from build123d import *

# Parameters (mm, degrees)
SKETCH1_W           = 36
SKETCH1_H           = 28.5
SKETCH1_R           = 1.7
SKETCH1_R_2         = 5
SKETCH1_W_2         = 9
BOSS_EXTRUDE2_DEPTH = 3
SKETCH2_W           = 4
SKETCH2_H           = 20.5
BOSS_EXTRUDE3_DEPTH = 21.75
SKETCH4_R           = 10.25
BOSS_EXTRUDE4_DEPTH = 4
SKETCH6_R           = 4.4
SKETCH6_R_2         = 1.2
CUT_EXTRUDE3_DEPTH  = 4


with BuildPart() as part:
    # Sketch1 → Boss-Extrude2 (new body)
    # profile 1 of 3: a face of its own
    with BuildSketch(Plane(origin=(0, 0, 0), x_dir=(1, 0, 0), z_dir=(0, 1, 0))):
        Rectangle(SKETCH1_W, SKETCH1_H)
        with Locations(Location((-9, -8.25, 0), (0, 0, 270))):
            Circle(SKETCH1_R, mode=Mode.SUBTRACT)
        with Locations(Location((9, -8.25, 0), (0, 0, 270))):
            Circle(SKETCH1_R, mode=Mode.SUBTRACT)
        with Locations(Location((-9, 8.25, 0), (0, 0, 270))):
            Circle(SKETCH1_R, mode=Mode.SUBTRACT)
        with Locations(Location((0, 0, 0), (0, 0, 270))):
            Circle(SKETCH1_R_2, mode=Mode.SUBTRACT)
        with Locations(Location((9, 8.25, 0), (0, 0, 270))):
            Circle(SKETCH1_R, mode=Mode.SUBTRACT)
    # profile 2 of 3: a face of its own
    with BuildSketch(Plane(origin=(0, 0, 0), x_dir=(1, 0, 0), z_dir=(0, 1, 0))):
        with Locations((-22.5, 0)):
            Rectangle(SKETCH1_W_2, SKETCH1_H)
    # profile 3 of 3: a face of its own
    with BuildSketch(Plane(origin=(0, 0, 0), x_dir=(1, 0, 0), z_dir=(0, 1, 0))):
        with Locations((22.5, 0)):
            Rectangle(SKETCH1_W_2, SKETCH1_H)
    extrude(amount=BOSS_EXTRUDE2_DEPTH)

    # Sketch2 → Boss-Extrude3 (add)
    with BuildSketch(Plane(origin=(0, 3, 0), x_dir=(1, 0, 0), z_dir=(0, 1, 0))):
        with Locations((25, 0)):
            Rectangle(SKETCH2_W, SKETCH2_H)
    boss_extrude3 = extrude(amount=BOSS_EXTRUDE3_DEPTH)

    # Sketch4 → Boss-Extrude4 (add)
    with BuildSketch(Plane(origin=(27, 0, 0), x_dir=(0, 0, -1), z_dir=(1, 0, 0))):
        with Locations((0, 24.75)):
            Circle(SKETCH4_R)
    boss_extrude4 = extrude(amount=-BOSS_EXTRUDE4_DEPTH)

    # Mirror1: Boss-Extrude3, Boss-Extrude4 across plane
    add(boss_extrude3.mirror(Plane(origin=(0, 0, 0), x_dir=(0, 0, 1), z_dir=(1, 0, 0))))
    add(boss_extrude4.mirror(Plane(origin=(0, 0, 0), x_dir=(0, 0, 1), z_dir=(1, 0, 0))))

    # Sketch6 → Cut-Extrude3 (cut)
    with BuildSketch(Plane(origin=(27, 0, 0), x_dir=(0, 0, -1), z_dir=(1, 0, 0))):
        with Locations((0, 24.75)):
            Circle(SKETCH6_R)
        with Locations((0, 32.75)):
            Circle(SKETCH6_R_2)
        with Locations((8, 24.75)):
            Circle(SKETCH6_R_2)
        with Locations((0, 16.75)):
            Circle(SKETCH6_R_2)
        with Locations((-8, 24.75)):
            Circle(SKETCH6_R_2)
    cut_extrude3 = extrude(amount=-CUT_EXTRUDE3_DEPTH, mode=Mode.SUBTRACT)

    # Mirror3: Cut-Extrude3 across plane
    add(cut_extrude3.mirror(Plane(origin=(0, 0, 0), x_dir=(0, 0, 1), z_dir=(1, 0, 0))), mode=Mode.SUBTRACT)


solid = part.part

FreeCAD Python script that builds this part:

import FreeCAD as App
import Part
import Sketcher
from FreeCAD import Vector


def add_polygon(sketch, points):
    """Adds a closed chain of lines whose ends are joined by coincident constraints."""
    first, n = sketch.GeometryCount, len(points)
    for a, b in zip(points, points[1:] + points[:1]):
        sketch.addGeometry(Part.LineSegment(App.Vector(*a, 0), App.Vector(*b, 0)), False)
    for i in range(n):
        sketch.addConstraint(Sketcher.Constraint("Coincident", first + i, 2, first + (i + 1) % n, 1))

doc = App.newDocument("Part")
params = doc.addObject("Spreadsheet::Sheet", "Params")
for row, (alias, value) in enumerate([
    ("sketch1_diameter", "10 mm"),
    ("sketch1_diameter2", "3.4 mm"),
    ("sketch1_width", "54 mm"),
    ("sketch1_height", "28.5 mm"),
    ("pad1_length", "3 mm"),
    ("sketch2_width", "4 mm"),
    ("sketch2_height", "20.5 mm"),
    ("pad2_length", "21.75 mm"),
    ("sketch3_diameter", "20.5 mm"),
    ("pad3_length", "4 mm"),
    ("sketch4_diameter", "8.8 mm"),
    ("sketch4_diameter2", "2.4 mm"),
    ("pocket1_length", "4 mm"),
], start=1):
    params.set(f"A{row}", alias)
    params.set(f"B{row}", "=" + value)
    params.setAlias(f"B{row}", alias)

body = doc.addObject("PartDesign::Body", "Body")

# Sketch on XZ plane
sketch1 = body.newObject("Sketcher::SketchObject", "Sketch")
sketch1.AttachmentSupport = (doc.getObject("XZ_Plane"), [""])
sketch1.MapMode = "FlatFace"
add_polygon(sketch1, [(27, 14.2), (27, -14.2), (-27, -14.2), (-27, 14.2)])  # lines 0-3
sketch1.addGeometry(Part.Circle(Vector(-9, 8.2, 0), Vector(0, 0, 1), 1.7), False)  # 4
sketch1.addGeometry(Part.Circle(Vector(9, 8.2, 0), Vector(0, 0, 1), 1.7), False)  # 5
sketch1.addGeometry(Part.Circle(Vector(-9, -8.2, 0), Vector(0, 0, 1), 1.7), False)  # 6
sketch1.addGeometry(Part.Circle(Vector(0, 0, 0), Vector(0, 0, 1), 5), False)  # 7
sketch1.addGeometry(Part.Circle(Vector(9, -8.2, 0), Vector(0, 0, 1), 1.7), False)  # 8
sketch1.addConstraint([
    Sketcher.Constraint("Vertical", 0),
    Sketcher.Constraint("Horizontal", 1),
    Sketcher.Constraint("Vertical", 2),
    Sketcher.Constraint("Horizontal", 3),
    Sketcher.Constraint("Coincident", 7, 3, -1, 1),
    Sketcher.Constraint("Equal", 4, 5),
    Sketcher.Constraint("Equal", 5, 6),
    Sketcher.Constraint("Equal", 6, 8),
    Sketcher.Constraint("Symmetric", 5, 3, 6, 3, -1, 1),
    Sketcher.Constraint("Symmetric", 4, 3, 8, 3, -1, 1),
    Sketcher.Constraint("Symmetric", 0, 2, 2, 2, -1, 1),
    Sketcher.Constraint("Symmetric", 4, 3, 5, 3, -2),
    Sketcher.Constraint("Diameter", 7, 10.0),
    Sketcher.Constraint("Diameter", 4, 3.4),
    Sketcher.Constraint("DistanceX", 1, 2, 1, 1, 54.0),
    Sketcher.Constraint("DistanceY", 0, 2, 0, 1, 28.5),
    Sketcher.Constraint("DistanceX", 4, 3, -1, 1, 9.0),
    Sketcher.Constraint("DistanceY", 0, 2, 8, 3, 6.0),
])
sketch1.setExpression("Constraints[16]", "Params.sketch1_diameter")
sketch1.setExpression("Constraints[17]", "Params.sketch1_diameter2")
sketch1.setExpression("Constraints[18]", "Params.sketch1_width")
sketch1.setExpression("Constraints[19]", "Params.sketch1_height")
pad1 = body.newObject("PartDesign::Pad", "Pad")
pad1.Profile = sketch1
pad1.setExpression("Length", "Params.pad1_length")
pad1.Reversed = True

# Sketch on XZ plane
sketch2 = body.newObject("Sketcher::SketchObject", "Sketch001")
sketch2.AttachmentSupport = (doc.getObject("XZ_Plane"), [""])
sketch2.MapMode = "FlatFace"
sketch2.AttachmentOffset = App.Placement(Vector(0, 0, -3), App.Rotation())
add_polygon(sketch2, [(23, -10.2), (23, 10.2), (27, 10.2), (27, -10.2)])  # lines 0-3
sketch2.addConstraint([
    Sketcher.Constraint("Vertical", 0),
    Sketcher.Constraint("Horizontal", 1),
    Sketcher.Constraint("Vertical", 2),
    Sketcher.Constraint("Horizontal", 3),
    Sketcher.Constraint("DistanceX", 1, 1, 1, 2, 4.0),
    Sketcher.Constraint("DistanceY", 0, 1, 0, 2, 20.5),
    Sketcher.Constraint("DistanceX", -1, 1, 0, 2, 23.0),
    Sketcher.Constraint("DistanceY", -1, 1, 0, 2, 10.25),
])
sketch2.setExpression("Constraints[8]", "Params.sketch2_width")
sketch2.setExpression("Constraints[9]", "Params.sketch2_height")
pad2 = body.newObject("PartDesign::Pad", "Pad001")
pad2.Profile = sketch2
pad2.setExpression("Length", "Params.pad2_length")
pad2.Reversed = True

# Sketch on YZ plane
sketch3 = body.newObject("Sketcher::SketchObject", "Sketch002")
sketch3.AttachmentSupport = (doc.getObject("YZ_Plane"), [""])
sketch3.MapMode = "FlatFace"
sketch3.AttachmentOffset = App.Placement(Vector(0, 0, 27), App.Rotation())
sketch3.addGeometry(Part.Circle(Vector(25, 0, 0), Vector(0, 0, 1), 10), False)
sketch3.addConstraint([
    Sketcher.Constraint("PointOnObject", 0, 3, -1),
    Sketcher.Constraint("Diameter", 0, 20.5),
    Sketcher.Constraint("DistanceX", -1, 1, 0, 3, 24.75),
])
sketch3.setExpression("Constraints[1]", "Params.sketch3_diameter")
pad3 = body.newObject("PartDesign::Pad", "Pad002")
pad3.Profile = sketch3
pad3.setExpression("Length", "Params.pad3_length")
pad3.Reversed = True
doc.recompute()

mirrored = body.newObject("PartDesign::Mirrored", "Mirrored")
mirrored.Originals = [pad2, pad3]
mirrored.MirrorPlane = (doc.getObject("YZ_Plane"), [""])
body.Tip = mirrored

# Sketch on YZ plane
sketch4 = body.newObject("Sketcher::SketchObject", "Sketch003")
sketch4.AttachmentSupport = (doc.getObject("YZ_Plane"), [""])
sketch4.MapMode = "FlatFace"
sketch4.AttachmentOffset = App.Placement(Vector(0, 0, 27), App.Rotation())
sketch4.addGeometry([
    Part.Circle(Vector(24.8, 0, 0), Vector(0, 0, 1), 4.4),  # 0
    Part.Circle(Vector(32.8, 0, 0), Vector(0, 0, 1), 1.2),  # 1
    Part.Circle(Vector(24.8, -8, 0), Vector(0, 0, 1), 1.2),  # 2
    Part.Circle(Vector(16.8, 0, 0), Vector(0, 0, 1), 1.2),  # 3
    Part.Circle(Vector(24.8, 8, 0), Vector(0, 0, 1), 1.2),  # 4
], False)
sketch4.addConstraint([
    Sketcher.Constraint("Equal", 1, 2),
    Sketcher.Constraint("Equal", 2, 3),
    Sketcher.Constraint("Equal", 3, 4),
    Sketcher.Constraint("Symmetric", 2, 3, 4, 3, -1),
    Sketcher.Constraint("PointOnObject", 0, 3, -1),
    Sketcher.Constraint("PointOnObject", 1, 3, -1),
    Sketcher.Constraint("PointOnObject", 3, 3, -1),
    Sketcher.Constraint("Vertical", 0, 3, 2, 3),
    Sketcher.Constraint("Diameter", 0, 8.8),
    Sketcher.Constraint("Diameter", 1, 2.4),
    Sketcher.Constraint("DistanceY", 2, 3, -1, 1, 8.0),
    Sketcher.Constraint("DistanceX", 0, 3, 1, 3, 8.0),
    Sketcher.Constraint("DistanceX", 3, 3, 0, 3, 8.0),
    Sketcher.Constraint("DistanceX", -1, 1, 0, 3, 24.75),
])
sketch4.setExpression("Constraints[8]", "Params.sketch4_diameter")
sketch4.setExpression("Constraints[9]", "Params.sketch4_diameter2")
pocket1 = body.newObject("PartDesign::Pocket", "Pocket")
pocket1.Profile = sketch4
pocket1.setExpression("Length", "Params.pocket1_length")
doc.recompute()

mirrored2 = body.newObject("PartDesign::Mirrored", "Mirrored001")
mirrored2.Originals = [pocket1]
mirrored2.MirrorPlane = (doc.getObject("YZ_Plane"), [""])
body.Tip = mirrored2

doc.recompute()
